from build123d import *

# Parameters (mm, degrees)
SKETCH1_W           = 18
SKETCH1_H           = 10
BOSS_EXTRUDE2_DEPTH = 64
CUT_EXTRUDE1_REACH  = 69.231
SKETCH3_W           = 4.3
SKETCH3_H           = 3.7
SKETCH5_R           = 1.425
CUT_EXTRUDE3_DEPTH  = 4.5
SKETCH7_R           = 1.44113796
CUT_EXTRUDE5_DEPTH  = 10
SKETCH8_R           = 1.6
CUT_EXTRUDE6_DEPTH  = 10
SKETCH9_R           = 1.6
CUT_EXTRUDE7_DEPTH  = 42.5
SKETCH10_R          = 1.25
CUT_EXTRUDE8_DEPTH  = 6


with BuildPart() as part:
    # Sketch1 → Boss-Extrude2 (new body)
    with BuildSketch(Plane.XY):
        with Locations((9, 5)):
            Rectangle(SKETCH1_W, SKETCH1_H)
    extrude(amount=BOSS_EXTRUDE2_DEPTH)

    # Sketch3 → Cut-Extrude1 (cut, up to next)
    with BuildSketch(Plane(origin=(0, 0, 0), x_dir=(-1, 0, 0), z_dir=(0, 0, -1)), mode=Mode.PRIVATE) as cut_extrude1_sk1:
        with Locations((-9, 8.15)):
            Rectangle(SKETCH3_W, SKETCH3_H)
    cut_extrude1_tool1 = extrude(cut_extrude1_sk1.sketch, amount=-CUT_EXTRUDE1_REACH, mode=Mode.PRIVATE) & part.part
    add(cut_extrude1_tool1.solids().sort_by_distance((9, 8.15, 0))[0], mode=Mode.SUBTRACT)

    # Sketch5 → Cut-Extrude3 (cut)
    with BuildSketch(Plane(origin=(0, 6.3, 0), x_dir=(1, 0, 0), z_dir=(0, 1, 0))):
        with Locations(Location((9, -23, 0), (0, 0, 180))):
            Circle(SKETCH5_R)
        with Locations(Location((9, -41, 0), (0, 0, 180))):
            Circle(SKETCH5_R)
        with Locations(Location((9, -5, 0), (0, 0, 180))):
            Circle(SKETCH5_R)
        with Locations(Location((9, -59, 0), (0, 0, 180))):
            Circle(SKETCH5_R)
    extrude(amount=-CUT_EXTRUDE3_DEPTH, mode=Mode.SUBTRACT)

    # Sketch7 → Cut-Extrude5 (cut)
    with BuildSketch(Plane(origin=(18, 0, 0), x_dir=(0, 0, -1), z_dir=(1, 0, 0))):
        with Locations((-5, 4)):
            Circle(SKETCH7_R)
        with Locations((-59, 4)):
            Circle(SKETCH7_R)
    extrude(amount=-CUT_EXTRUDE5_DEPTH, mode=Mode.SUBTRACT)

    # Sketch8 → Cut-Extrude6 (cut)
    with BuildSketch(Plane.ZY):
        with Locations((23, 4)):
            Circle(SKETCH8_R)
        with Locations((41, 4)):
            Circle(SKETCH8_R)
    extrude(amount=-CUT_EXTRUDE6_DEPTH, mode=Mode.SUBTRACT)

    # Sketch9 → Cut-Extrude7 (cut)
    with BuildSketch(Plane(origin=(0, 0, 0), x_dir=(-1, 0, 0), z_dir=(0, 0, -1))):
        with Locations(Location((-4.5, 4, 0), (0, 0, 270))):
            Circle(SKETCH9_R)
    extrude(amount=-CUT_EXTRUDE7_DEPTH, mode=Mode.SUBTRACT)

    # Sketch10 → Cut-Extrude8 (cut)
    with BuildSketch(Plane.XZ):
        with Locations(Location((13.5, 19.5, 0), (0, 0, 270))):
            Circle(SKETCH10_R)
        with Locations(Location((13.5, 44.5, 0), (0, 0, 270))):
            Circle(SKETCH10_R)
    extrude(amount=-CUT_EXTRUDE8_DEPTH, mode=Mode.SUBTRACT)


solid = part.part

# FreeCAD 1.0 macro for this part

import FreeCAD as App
import Part
import Sketcher


def add_polygon(sketch, points):
    """Adds a closed chain of lines whose ends are joined by coincident constraints."""
    first, n = sketch.GeometryCount, len(points)
    for a, b in zip(points, points[1:] + points[:1]):
        sketch.addGeometry(Part.LineSegment(App.Vector(*a, 0), App.Vector(*b, 0)), False)
    for i in range(n):
        sketch.addConstraint(Sketcher.Constraint("Coincident", first + i, 2, first + (i + 1) % n, 1))

doc = App.newDocument("Part")
body = doc.addObject("PartDesign::Body", "Body")

# Sketch on XY plane
sketch1 = doc.addObject("Sketcher::SketchObject", "Sketch")
body.addObject(sketch1)
sketch1.AttachmentSupport = (doc.XY_Plane, [""])
sketch1.MapMode = "FlatFace"
add_polygon(sketch1, [(0, 10), (0, 0), (18, 0), (18, 10)])  # lines 0-3
sketch1.addConstraint([
    Sketcher.Constraint("Vertical", 0),
    Sketcher.Constraint("Horizontal", 1),
    Sketcher.Constraint("Vertical", 2),
    Sketcher.Constraint("Horizontal", 3),
    Sketcher.Constraint("Coincident", 0, 2, -1, 1),
    Sketcher.Constraint("DistanceX", 1, 1, 1, 2, 18.0),
    Sketcher.Constraint("DistanceY", 0, 2, 0, 1, 10.0),
])
pad1 = doc.addObject("PartDesign::Pad", "Pad")
body.addObject(pad1)
pad1.Profile = sketch1
pad1.Length = 64

# Sketch on XY plane
sketch2 = doc.addObject("Sketcher::SketchObject", "Sketch001")
body.addObject(sketch2)
sketch2.AttachmentSupport = (doc.XY_Plane, [""])
sketch2.MapMode = "FlatFace"
add_polygon(sketch2, [(11.2, 10), (11.2, 6.3), (6.8, 6.3), (6.8, 10)])  # lines 0-3
sketch2.addConstraint([
    Sketcher.Constraint("Vertical", 0),
    Sketcher.Constraint("Horizontal", 1),
    Sketcher.Constraint("Vertical", 2),
    Sketcher.Constraint("Horizontal", 3),
    Sketcher.Constraint("DistanceX", 1, 2, 1, 1, 4.3),
    Sketcher.Constraint("DistanceY", 0, 2, 0, 1, 3.7),
    Sketcher.Constraint("DistanceY", -1, 1, 2, 2, 10.0),
    Sketcher.Constraint("DistanceX", -1, 1, 0, 2, 11.15),
])
pocket1 = doc.addObject("PartDesign::Pocket", "Pocket")
body.addObject(pocket1)
pocket1.Profile = sketch2
pocket1.Type = "UpToFirst"
pocket1.Reversed = True

# Sketch on XZ plane
sketch3 = doc.addObject("Sketcher::SketchObject", "Sketch002")
body.addObject(sketch3)
sketch3.AttachmentSupport = (doc.XZ_Plane, [""])
sketch3.MapMode = "FlatFace"
sketch3.AttachmentOffset = App.Placement(App.Vector(0, 0, -6.3), App.Rotation())
sketch3.addGeometry([
    Part.Circle(App.Vector(9, 23, 0), App.Vector(0, 0, 1), 1.4),
    Part.Circle(App.Vector(9, 41, 0), App.Vector(0, 0, 1), 1.4),
    Part.Circle(App.Vector(9, 5, 0), App.Vector(0, 0, 1), 1.4),
    Part.Circle(App.Vector(9, 59, 0), App.Vector(0, 0, 1), 1.4),
], False)
sketch3.addConstraint([
    Sketcher.Constraint("Equal", 0, 1),
    Sketcher.Constraint("Equal", 1, 2),
    Sketcher.Constraint("Equal", 2, 3),
    Sketcher.Constraint("Vertical", 0, 3, 1, 3),
    Sketcher.Constraint("Vertical", 1, 3, 2, 3),
    Sketcher.Constraint("Vertical", 2, 3, 3, 3),
    Sketcher.Constraint("Diameter", 0, 2.85),
    Sketcher.Constraint("DistanceX", -1, 1, 0, 3, 9.0),
    Sketcher.Constraint("DistanceY", -1, 1, 0, 3, 23.0),
    Sketcher.Constraint("DistanceY", -1, 1, 1, 3, 41.0),
    Sketcher.Constraint("DistanceY", -1, 1, 2, 3, 5.0),
    Sketcher.Constraint("DistanceY", -1, 1, 3, 3, 59.0),
])
pocket2 = doc.addObject("PartDesign::Pocket", "Pocket001")
body.addObject(pocket2)
pocket2.Profile = sketch3
pocket2.Length = 4.5
pocket2.Reversed = True

# Sketch on YZ plane
sketch4 = doc.addObject("Sketcher::SketchObject", "Sketch003")
body.addObject(sketch4)
sketch4.AttachmentSupport = (doc.YZ_Plane, [""])
sketch4.MapMode = "FlatFace"
sketch4.AttachmentOffset = App.Placement(App.Vector(0, 0, 18), App.Rotation())
sketch4.addGeometry([
    Part.Circle(App.Vector(4, 5, 0), App.Vector(0, 0, 1), 1.4),
    Part.Circle(App.Vector(4, 59, 0), App.Vector(0, 0, 1), 1.4),
], False)
sketch4.addConstraint([
    Sketcher.Constraint("Equal", 0, 1),
    Sketcher.Constraint("Vertical", 0, 3, 1, 3),
    Sketcher.Constraint("DistanceX", -1, 1, 0, 3, 4.0),
    Sketcher.Constraint("DistanceY", -1, 1, 0, 3, 5.0),
    Sketcher.Constraint("DistanceY", -1, 1, 1, 3, 59.0),
    Sketcher.Constraint("Diameter", 0, 2.882276),
])
pocket3 = doc.addObject("PartDesign::Pocket", "Pocket002")
body.addObject(pocket3)
pocket3.Profile = sketch4
pocket3.Length = 10

# Sketch on YZ plane
sketch5 = doc.addObject("Sketcher::SketchObject", "Sketch004")
body.addObject(sketch5)
sketch5.AttachmentSupport = (doc.YZ_Plane, [""])
sketch5.MapMode = "FlatFace"
sketch5.addGeometry([
    Part.Circle(App.Vector(4, 23, 0), App.Vector(0, 0, 1), 1.6),
    Part.Circle(App.Vector(4, 41, 0), App.Vector(0, 0, 1), 1.6),
], False)
sketch5.addConstraint([
    Sketcher.Constraint("Equal", 0, 1),
    Sketcher.Constraint("Vertical", 0, 3, 1, 3),
    Sketcher.Constraint("Diameter", 0, 3.2),
    Sketcher.Constraint("DistanceX", -1, 1, 0, 3, 4.0),
    Sketcher.Constraint("DistanceY", -1, 1, 0, 3, 23.0),
    Sketcher.Constraint("DistanceY", -1, 1, 1, 3, 41.0),
])
pocket4 = doc.addObject("PartDesign::Pocket", "Pocket003")
body.addObject(pocket4)
pocket4.Profile = sketch5
pocket4.Length = 10
pocket4.Reversed = True

# Sketch on XY plane
sketch6 = doc.addObject("Sketcher::SketchObject", "Sketch005")
body.addObject(sketch6)
sketch6.AttachmentSupport = (doc.XY_Plane, [""])
sketch6.MapMode = "FlatFace"
sketch6.addGeometry(Part.Circle(App.Vector(4.5, 4, 0), App.Vector(0, 0, 1), 1.6), False)
sketch6.addConstraint([
    Sketcher.Constraint("Diameter", 0, 3.2),
    Sketcher.Constraint("DistanceY", -1, 1, 0, 3, 4.0),
    Sketcher.Constraint("DistanceX", -1, 1, 0, 3, 4.5),
])
pocket5 = doc.addObject("PartDesign::Pocket", "Pocket004")
body.addObject(pocket5)
pocket5.Profile = sketch6
pocket5.Length = 42.5
pocket5.Reversed = True

# Sketch on XZ plane
sketch7 = doc.addObject("Sketcher::SketchObject", "Sketch006")
body.addObject(sketch7)
sketch7.AttachmentSupport = (doc.XZ_Plane, [""])
sketch7.MapMode = "FlatFace"
sketch7.addGeometry([
    Part.Circle(App.Vector(13.5, 19.5, 0), App.Vector(0, 0, 1), 1.2),
    Part.Circle(App.Vector(13.5, 44.5, 0), App.Vector(0, 0, 1), 1.2),
], False)
sketch7.addConstraint([
    Sketcher.Constraint("Equal", 0, 1),
    Sketcher.Constraint("Vertical", 0, 3, 1, 3),
    Sketcher.Constraint("Diameter", 0, 2.5),
    Sketcher.Constraint("DistanceY", 0, 3, 1, 3, 25.0),
    Sketcher.Constraint("DistanceX", -1, 1, 0, 3, 13.5),
    Sketcher.Constraint("DistanceY", -1, 1, 0, 3, 19.5),
])
pocket6 = doc.addObject("PartDesign::Pocket", "Pocket005")
body.addObject(pocket6)
pocket6.Profile = sketch7
pocket6.Length = 6

doc.recompute()
